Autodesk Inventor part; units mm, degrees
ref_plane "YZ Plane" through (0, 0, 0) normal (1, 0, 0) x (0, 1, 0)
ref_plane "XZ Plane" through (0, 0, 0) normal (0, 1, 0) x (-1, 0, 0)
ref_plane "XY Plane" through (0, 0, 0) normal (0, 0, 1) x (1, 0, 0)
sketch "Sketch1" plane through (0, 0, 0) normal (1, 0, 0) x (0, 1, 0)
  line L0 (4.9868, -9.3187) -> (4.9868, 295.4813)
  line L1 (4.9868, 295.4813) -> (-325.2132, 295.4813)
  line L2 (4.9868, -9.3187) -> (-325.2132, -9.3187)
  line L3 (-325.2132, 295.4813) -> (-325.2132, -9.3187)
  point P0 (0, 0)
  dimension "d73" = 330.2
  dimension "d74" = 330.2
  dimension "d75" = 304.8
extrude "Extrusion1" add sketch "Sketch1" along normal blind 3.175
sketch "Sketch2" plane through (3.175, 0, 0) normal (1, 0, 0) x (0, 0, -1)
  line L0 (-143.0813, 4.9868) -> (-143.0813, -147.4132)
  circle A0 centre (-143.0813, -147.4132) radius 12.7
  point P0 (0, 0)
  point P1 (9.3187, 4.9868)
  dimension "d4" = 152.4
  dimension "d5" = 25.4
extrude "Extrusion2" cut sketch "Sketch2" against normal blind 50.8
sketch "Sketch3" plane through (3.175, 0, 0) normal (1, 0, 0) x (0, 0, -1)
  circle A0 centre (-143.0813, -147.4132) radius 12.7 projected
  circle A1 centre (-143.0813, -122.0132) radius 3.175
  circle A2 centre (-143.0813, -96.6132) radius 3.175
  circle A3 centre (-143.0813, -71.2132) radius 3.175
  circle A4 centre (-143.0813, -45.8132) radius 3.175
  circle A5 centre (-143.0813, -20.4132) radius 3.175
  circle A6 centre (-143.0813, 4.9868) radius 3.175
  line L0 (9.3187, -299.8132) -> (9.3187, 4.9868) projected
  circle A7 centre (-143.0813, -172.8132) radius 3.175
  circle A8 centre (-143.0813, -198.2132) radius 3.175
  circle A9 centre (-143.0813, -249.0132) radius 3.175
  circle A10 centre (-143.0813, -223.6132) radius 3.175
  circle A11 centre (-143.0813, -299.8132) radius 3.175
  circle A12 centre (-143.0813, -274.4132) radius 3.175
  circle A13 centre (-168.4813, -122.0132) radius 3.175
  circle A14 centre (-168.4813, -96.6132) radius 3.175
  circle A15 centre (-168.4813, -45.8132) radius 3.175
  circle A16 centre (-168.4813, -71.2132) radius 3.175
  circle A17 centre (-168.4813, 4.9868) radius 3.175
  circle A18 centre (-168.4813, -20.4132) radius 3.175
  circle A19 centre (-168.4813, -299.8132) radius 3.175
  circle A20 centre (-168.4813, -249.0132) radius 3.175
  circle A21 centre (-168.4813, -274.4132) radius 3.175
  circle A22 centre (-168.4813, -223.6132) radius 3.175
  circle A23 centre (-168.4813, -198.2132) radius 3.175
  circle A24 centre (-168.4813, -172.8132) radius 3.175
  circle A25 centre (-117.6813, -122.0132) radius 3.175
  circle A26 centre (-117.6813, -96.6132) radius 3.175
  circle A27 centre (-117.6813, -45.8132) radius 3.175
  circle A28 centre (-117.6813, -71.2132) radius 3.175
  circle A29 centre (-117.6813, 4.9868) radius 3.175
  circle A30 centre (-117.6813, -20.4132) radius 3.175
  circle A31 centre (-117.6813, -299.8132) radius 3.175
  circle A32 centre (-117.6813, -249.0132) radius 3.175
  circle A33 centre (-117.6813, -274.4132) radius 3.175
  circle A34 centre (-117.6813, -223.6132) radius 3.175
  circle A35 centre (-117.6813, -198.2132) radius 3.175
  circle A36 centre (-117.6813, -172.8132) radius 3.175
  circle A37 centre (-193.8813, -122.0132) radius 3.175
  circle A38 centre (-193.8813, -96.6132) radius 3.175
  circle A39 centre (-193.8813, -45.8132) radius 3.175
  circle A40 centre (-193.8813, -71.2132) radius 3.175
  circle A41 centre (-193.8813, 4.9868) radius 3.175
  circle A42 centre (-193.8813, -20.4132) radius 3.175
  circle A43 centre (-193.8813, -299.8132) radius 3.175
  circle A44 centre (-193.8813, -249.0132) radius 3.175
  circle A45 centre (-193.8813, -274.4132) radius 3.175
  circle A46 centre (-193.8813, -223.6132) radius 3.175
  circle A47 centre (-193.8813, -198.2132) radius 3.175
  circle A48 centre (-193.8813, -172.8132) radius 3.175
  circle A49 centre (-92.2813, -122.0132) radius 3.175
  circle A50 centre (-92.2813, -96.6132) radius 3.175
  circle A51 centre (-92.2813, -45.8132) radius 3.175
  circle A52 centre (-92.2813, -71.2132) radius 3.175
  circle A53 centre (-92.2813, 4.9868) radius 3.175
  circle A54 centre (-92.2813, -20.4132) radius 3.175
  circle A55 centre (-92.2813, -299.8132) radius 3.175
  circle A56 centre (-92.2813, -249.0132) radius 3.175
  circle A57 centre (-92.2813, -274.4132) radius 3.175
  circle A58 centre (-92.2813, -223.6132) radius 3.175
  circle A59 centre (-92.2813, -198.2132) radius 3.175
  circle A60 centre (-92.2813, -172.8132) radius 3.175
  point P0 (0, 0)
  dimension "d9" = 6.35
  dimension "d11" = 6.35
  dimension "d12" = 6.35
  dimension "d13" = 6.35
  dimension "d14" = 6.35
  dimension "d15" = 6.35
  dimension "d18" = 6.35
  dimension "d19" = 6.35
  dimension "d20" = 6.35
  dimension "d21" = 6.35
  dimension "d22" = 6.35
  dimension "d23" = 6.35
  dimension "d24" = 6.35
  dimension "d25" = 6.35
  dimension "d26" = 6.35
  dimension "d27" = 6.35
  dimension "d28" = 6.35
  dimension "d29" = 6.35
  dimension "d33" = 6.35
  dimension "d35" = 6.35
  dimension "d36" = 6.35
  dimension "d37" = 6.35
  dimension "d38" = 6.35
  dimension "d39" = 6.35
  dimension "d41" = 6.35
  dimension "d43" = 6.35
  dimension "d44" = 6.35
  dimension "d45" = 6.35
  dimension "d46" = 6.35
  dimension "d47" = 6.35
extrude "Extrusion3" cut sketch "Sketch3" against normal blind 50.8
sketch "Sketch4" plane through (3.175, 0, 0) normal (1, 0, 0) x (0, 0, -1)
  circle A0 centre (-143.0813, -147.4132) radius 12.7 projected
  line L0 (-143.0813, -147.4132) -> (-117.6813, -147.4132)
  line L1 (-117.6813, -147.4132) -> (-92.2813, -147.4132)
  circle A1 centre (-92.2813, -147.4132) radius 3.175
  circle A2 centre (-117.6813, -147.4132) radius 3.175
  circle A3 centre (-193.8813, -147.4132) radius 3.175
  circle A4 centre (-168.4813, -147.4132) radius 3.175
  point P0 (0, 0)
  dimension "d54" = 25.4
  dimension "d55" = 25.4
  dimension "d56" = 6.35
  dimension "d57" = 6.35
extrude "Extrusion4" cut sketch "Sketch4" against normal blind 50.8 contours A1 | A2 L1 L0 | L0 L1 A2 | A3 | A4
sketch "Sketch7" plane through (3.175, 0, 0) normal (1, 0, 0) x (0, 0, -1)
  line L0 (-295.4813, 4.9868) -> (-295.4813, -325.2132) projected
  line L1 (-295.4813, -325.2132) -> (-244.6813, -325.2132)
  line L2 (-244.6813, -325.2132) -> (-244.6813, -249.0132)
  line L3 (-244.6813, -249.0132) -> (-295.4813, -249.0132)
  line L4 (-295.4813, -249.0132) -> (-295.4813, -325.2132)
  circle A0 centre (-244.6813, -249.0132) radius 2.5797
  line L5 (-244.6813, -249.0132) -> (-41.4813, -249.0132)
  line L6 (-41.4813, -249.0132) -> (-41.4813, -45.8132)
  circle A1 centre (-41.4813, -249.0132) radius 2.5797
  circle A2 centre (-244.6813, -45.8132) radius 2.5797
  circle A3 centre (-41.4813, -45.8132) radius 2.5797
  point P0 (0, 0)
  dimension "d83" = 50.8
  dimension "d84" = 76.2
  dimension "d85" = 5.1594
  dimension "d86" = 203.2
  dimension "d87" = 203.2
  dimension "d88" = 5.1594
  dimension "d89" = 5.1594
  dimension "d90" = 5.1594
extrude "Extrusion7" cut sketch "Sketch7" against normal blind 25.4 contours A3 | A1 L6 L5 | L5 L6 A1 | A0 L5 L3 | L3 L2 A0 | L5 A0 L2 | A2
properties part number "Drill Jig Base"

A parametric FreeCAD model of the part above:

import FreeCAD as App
import Part
import Sketcher
from FreeCAD import Vector
Q = App.Units.Quantity


def add_polygon(sketch, points):
    """Adds a closed chain of lines whose ends are joined by coincident constraints."""
    first, n = sketch.GeometryCount, len(points)
    for a, b in zip(points, points[1:] + points[:1]):
        sketch.addGeometry(Part.LineSegment(App.Vector(*a, 0), App.Vector(*b, 0)), False)
    for i in range(n):
        sketch.addConstraint(Sketcher.Constraint("Coincident", first + i, 2, first + (i + 1) % n, 1))

doc = App.newDocument("Part")
body = doc.addObject("PartDesign::Body", "Body")

# Sketch on YZ plane
sketch1 = body.newObject("Sketcher::SketchObject", "Sketch")
sketch1.AttachmentSupport = (doc.getObject("YZ_Plane"), [""])
sketch1.MapMode = "FlatFace"
add_polygon(sketch1, [(-325.2132, -9.3187), (4.9868, -9.3187), (4.9868, 295.4813), (-325.2132, 295.4813)])  # lines 0-3
sketch1.addConstraint(Sketcher.Constraint("Horizontal", 0))
sketch1.addConstraint(Sketcher.Constraint("Vertical", 1))
sketch1.addConstraint(Sketcher.Constraint("Horizontal", 2))
sketch1.addConstraint(Sketcher.Constraint("Vertical", 3))
sketch1.addConstraint(Sketcher.Constraint("DistanceX", 0, 1, 0, 2, Q("13 in")))
sketch1.addConstraint(Sketcher.Constraint("DistanceY", 1, 1, 1, 2, Q("12 in")))
sketch1.addConstraint(Sketcher.Constraint("DistanceX", -1, 1, 0, 2, 4.9868))
sketch1.addConstraint(Sketcher.Constraint("DistanceY", 0, 2, -1, 1, 9.3187))
pad1 = body.newObject("PartDesign::Pad", "Pad")
pad1.Profile = sketch1
pad1.Length = Q("0.125 in")

# Sketch on YZ plane
sketch2 = body.newObject("Sketcher::SketchObject", "Sketch001")
sketch2.AttachmentSupport = (doc.getObject("YZ_Plane"), [""])
sketch2.MapMode = "FlatFace"
sketch2.AttachmentOffset = App.Placement(Vector(0, 0, 0.125 * 25.4), App.Rotation())
sketch2.addGeometry(Part.Circle(Vector(-147.4132, 143.0813, 0), Vector(0, 0, 1), 12.7), False)
sketch2.addConstraint(Sketcher.Constraint("Diameter", 0, Q("1 in")))
sketch2.addConstraint(Sketcher.Constraint("DistanceX", 0, 3, -1, 1, 147.4132))
sketch2.addConstraint(Sketcher.Constraint("DistanceY", -1, 1, 0, 3, 143.0813))
pocket1 = body.newObject("PartDesign::Pocket", "Pocket")
pocket1.Profile = sketch2
pocket1.Length = Q("2 in")

# Sketch on YZ plane
sketch3 = body.newObject("Sketcher::SketchObject", "Sketch002")
sketch3.AttachmentSupport = (doc.getObject("YZ_Plane"), [""])
sketch3.MapMode = "FlatFace"
sketch3.AttachmentOffset = App.Placement(Vector(0, 0, 0.125 * 25.4), App.Rotation())
sketch3.addGeometry(Part.Circle(Vector(-147.4132, 143.0813, 0), Vector(0, 0, 1), 12.7), False)
sketch3.addGeometry(Part.Circle(Vector(-122.0132, 143.0813, 0), Vector(0, 0, 1), 3.175), False)
sketch3.addGeometry(Part.Circle(Vector(-96.6132, 143.0813, 0), Vector(0, 0, 1), 3.175), False)
sketch3.addGeometry(Part.Circle(Vector(-71.2132, 143.0813, 0), Vector(0, 0, 1), 3.175), False)
sketch3.addGeometry(Part.Circle(Vector(-45.8132, 143.0813, 0), Vector(0, 0, 1), 3.175), False)
sketch3.addGeometry(Part.Circle(Vector(-20.4132, 143.0813, 0), Vector(0, 0, 1), 3.175), False)
sketch3.addGeometry(Part.Circle(Vector(4.9868, 143.0813, 0), Vector(0, 0, 1), 3.175), False)
sketch3.addGeometry(Part.Circle(Vector(-172.8132, 143.0813, 0), Vector(0, 0, 1), 3.175), False)
sketch3.addGeometry(Part.Circle(Vector(-198.2132, 143.0813, 0), Vector(0, 0, 1), 3.175), False)
sketch3.addGeometry(Part.Circle(Vector(-249.0132, 143.0813, 0), Vector(0, 0, 1), 3.175), False)
sketch3.addGeometry(Part.Circle(Vector(-223.6132, 143.0813, 0), Vector(0, 0, 1), 3.175), False)
sketch3.addGeometry(Part.Circle(Vector(-299.8132, 143.0813, 0), Vector(0, 0, 1), 3.175), False)
sketch3.addGeometry(Part.Circle(Vector(-274.4132, 143.0813, 0), Vector(0, 0, 1), 3.175), False)
sketch3.addGeometry(Part.Circle(Vector(-122.0132, 168.4813, 0), Vector(0, 0, 1), 3.175), False)
sketch3.addGeometry(Part.Circle(Vector(-96.6132, 168.4813, 0), Vector(0, 0, 1), 3.175), False)
sketch3.addGeometry(Part.Circle(Vector(-45.8132, 168.4813, 0), Vector(0, 0, 1), 3.175), False)
sketch3.addGeometry(Part.Circle(Vector(-71.2132, 168.4813, 0), Vector(0, 0, 1), 3.175), False)
sketch3.addGeometry(Part.Circle(Vector(4.9868, 168.4813, 0), Vector(0, 0, 1), 3.175), False)
sketch3.addGeometry(Part.Circle(Vector(-20.4132, 168.4813, 0), Vector(0, 0, 1), 3.175), False)
sketch3.addGeometry(Part.Circle(Vector(-299.8132, 168.4813, 0), Vector(0, 0, 1), 3.175), False)
sketch3.addGeometry(Part.Circle(Vector(-249.0132, 168.4813, 0), Vector(0, 0, 1), 3.175), False)
sketch3.addGeometry(Part.Circle(Vector(-274.4132, 168.4813, 0), Vector(0, 0, 1), 3.175), False)
sketch3.addGeometry(Part.Circle(Vector(-223.6132, 168.4813, 0), Vector(0, 0, 1), 3.175), False)
sketch3.addGeometry(Part.Circle(Vector(-198.2132, 168.4813, 0), Vector(0, 0, 1), 3.175), False)
sketch3.addGeometry(Part.Circle(Vector(-172.8132, 168.4813, 0), Vector(0, 0, 1), 3.175), False)
sketch3.addGeometry(Part.Circle(Vector(-122.0132, 117.6813, 0), Vector(0, 0, 1), 3.175), False)
sketch3.addGeometry(Part.Circle(Vector(-96.6132, 117.6813, 0), Vector(0, 0, 1), 3.175), False)
sketch3.addGeometry(Part.Circle(Vector(-45.8132, 117.6813, 0), Vector(0, 0, 1), 3.175), False)
sketch3.addGeometry(Part.Circle(Vector(-71.2132, 117.6813, 0), Vector(0, 0, 1), 3.175), False)
sketch3.addGeometry(Part.Circle(Vector(4.9868, 117.6813, 0), Vector(0, 0, 1), 3.175), False)
sketch3.addGeometry(Part.Circle(Vector(-20.4132, 117.6813, 0), Vector(0, 0, 1), 3.175), False)
sketch3.addGeometry(Part.Circle(Vector(-299.8132, 117.6813, 0), Vector(0, 0, 1), 3.175), False)
sketch3.addGeometry(Part.Circle(Vector(-249.0132, 117.6813, 0), Vector(0, 0, 1), 3.175), False)
sketch3.addGeometry(Part.Circle(Vector(-274.4132, 117.6813, 0), Vector(0, 0, 1), 3.175), False)
sketch3.addGeometry(Part.Circle(Vector(-223.6132, 117.6813, 0), Vector(0, 0, 1), 3.175), False)
sketch3.addGeometry(Part.Circle(Vector(-198.2132, 117.6813, 0), Vector(0, 0, 1), 3.175), False)
sketch3.addGeometry(Part.Circle(Vector(-172.8132, 117.6813, 0), Vector(0, 0, 1), 3.175), False)
sketch3.addGeometry(Part.Circle(Vector(-122.0132, 193.8813, 0), Vector(0, 0, 1), 3.175), False)
sketch3.addGeometry(Part.Circle(Vector(-96.6132, 193.8813, 0), Vector(0, 0, 1), 3.175), False)
sketch3.addGeometry(Part.Circle(Vector(-45.8132, 193.8813, 0), Vector(0, 0, 1), 3.175), False)
sketch3.addGeometry(Part.Circle(Vector(-71.2132, 193.8813, 0), Vector(0, 0, 1), 3.175), False)
sketch3.addGeometry(Part.Circle(Vector(4.9868, 193.8813, 0), Vector(0, 0, 1), 3.175), False)
sketch3.addGeometry(Part.Circle(Vector(-20.4132, 193.8813, 0), Vector(0, 0, 1), 3.175), False)
sketch3.addGeometry(Part.Circle(Vector(-299.8132, 193.8813, 0), Vector(0, 0, 1), 3.175), False)
sketch3.addGeometry(Part.Circle(Vector(-249.0132, 193.8813, 0), Vector(0, 0, 1), 3.175), False)
sketch3.addGeometry(Part.Circle(Vector(-274.4132, 193.8813, 0), Vector(0, 0, 1), 3.175), False)
sketch3.addGeometry(Part.Circle(Vector(-223.6132, 193.8813, 0), Vector(0, 0, 1), 3.175), False)
sketch3.addGeometry(Part.Circle(Vector(-198.2132, 193.8813, 0), Vector(0, 0, 1), 3.175), False)
sketch3.addGeometry(Part.Circle(Vector(-172.8132, 193.8813, 0), Vector(0, 0, 1), 3.175), False)
sketch3.addGeometry(Part.Circle(Vector(-122.0132, 92.2813, 0), Vector(0, 0, 1), 3.175), False)
sketch3.addGeometry(Part.Circle(Vector(-96.6132, 92.2813, 0), Vector(0, 0, 1), 3.175), False)
sketch3.addGeometry(Part.Circle(Vector(-45.8132, 92.2813, 0), Vector(0, 0, 1), 3.175), False)
sketch3.addGeometry(Part.Circle(Vector(-71.2132, 92.2813, 0), Vector(0, 0, 1), 3.175), False)
sketch3.addGeometry(Part.Circle(Vector(4.9868, 92.2813, 0), Vector(0, 0, 1), 3.175), False)
sketch3.addGeometry(Part.Circle(Vector(-20.4132, 92.2813, 0), Vector(0, 0, 1), 3.175), False)
sketch3.addGeometry(Part.Circle(Vector(-299.8132, 92.2813, 0), Vector(0, 0, 1), 3.175), False)
sketch3.addGeometry(Part.Circle(Vector(-249.0132, 92.2813, 0), Vector(0, 0, 1), 3.175), False)
sketch3.addGeometry(Part.Circle(Vector(-274.4132, 92.2813, 0), Vector(0, 0, 1), 3.175), False)
sketch3.addGeometry(Part.Circle(Vector(-223.6132, 92.2813, 0), Vector(0, 0, 1), 3.175), False)
sketch3.addGeometry(Part.Circle(Vector(-198.2132, 92.2813, 0), Vector(0, 0, 1), 3.175), False)
sketch3.addGeometry(Part.Circle(Vector(-172.8132, 92.2813, 0), Vector(0, 0, 1), 3.175), False)
sketch3.addConstraint(Sketcher.Constraint("Equal", 1, 2))
sketch3.addConstraint(Sketcher.Constraint("Equal", 2, 3))
sketch3.addConstraint(Sketcher.Constraint("Equal", 3, 4))
sketch3.addConstraint(Sketcher.Constraint("Equal", 4, 5))
sketch3.addConstraint(Sketcher.Constraint("Equal", 5, 6))
sketch3.addConstraint(Sketcher.Constraint("Equal", 6, 7))
sketch3.addConstraint(Sketcher.Constraint("Equal", 7, 8))
sketch3.addConstraint(Sketcher.Constraint("Equal", 8, 9))
sketch3.addConstraint(Sketcher.Constraint("Equal", 9, 10))
sketch3.addConstraint(Sketcher.Constraint("Equal", 10, 11))
sketch3.addConstraint(Sketcher.Constraint("Equal", 11, 12))
sketch3.addConstraint(Sketcher.Constraint("Equal", 12, 13))
sketch3.addConstraint(Sketcher.Constraint("Equal", 13, 14))
sketch3.addConstraint(Sketcher.Constraint("Equal", 14, 15))
sketch3.addConstraint(Sketcher.Constraint("Equal", 15, 16))
sketch3.addConstraint(Sketcher.Constraint("Equal", 16, 17))
sketch3.addConstraint(Sketcher.Constraint("Equal", 17, 18))
sketch3.addConstraint(Sketcher.Constraint("Equal", 18, 19))
sketch3.addConstraint(Sketcher.Constraint("Equal", 19, 20))
sketch3.addConstraint(Sketcher.Constraint("Equal", 20, 21))
sketch3.addConstraint(Sketcher.Constraint("Equal", 21, 22))
sketch3.addConstraint(Sketcher.Constraint("Equal", 22, 23))
sketch3.addConstraint(Sketcher.Constraint("Equal", 23, 24))
sketch3.addConstraint(Sketcher.Constraint("Equal", 24, 25))
sketch3.addConstraint(Sketcher.Constraint("Equal", 25, 26))
sketch3.addConstraint(Sketcher.Constraint("Equal", 26, 27))
sketch3.addConstraint(Sketcher.Constraint("Equal", 27, 28))
sketch3.addConstraint(Sketcher.Constraint("Equal", 28, 29))
sketch3.addConstraint(Sketcher.Constraint("Equal", 29, 30))
sketch3.addConstraint(Sketcher.Constraint("Equal", 30, 31))
sketch3.addConstraint(Sketcher.Constraint("Equal", 31, 32))
sketch3.addConstraint(Sketcher.Constraint("Equal", 32, 33))
sketch3.addConstraint(Sketcher.Constraint("Equal", 33, 34))
sketch3.addConstraint(Sketcher.Constraint("Equal", 34, 35))
sketch3.addConstraint(Sketcher.Constraint("Equal", 35, 36))
sketch3.addConstraint(Sketcher.Constraint("Equal", 36, 37))
sketch3.addConstraint(Sketcher.Constraint("Equal", 37, 38))
sketch3.addConstraint(Sketcher.Constraint("Equal", 38, 39))
sketch3.addConstraint(Sketcher.Constraint("Equal", 39, 40))
sketch3.addConstraint(Sketcher.Constraint("Equal", 40, 41))
sketch3.addConstraint(Sketcher.Constraint("Equal", 41, 42))
sketch3.addConstraint(Sketcher.Constraint("Equal", 42, 43))
sketch3.addConstraint(Sketcher.Constraint("Equal", 43, 44))
sketch3.addConstraint(Sketcher.Constraint("Equal", 44, 45))
sketch3.addConstraint(Sketcher.Constraint("Equal", 45, 46))
sketch3.addConstraint(Sketcher.Constraint("Equal", 46, 47))
sketch3.addConstraint(Sketcher.Constraint("Equal", 47, 48))
sketch3.addConstraint(Sketcher.Constraint("Equal", 48, 49))
sketch3.addConstraint(Sketcher.Constraint("Equal", 49, 50))
sketch3.addConstraint(Sketcher.Constraint("Equal", 50, 51))
sketch3.addConstraint(Sketcher.Constraint("Equal", 51, 52))
sketch3.addConstraint(Sketcher.Constraint("Equal", 52, 53))
sketch3.addConstraint(Sketcher.Constraint("Equal", 53, 54))
sketch3.addConstraint(Sketcher.Constraint("Equal", 54, 55))
sketch3.addConstraint(Sketcher.Constraint("Equal", 55, 56))
sketch3.addConstraint(Sketcher.Constraint("Equal", 56, 57))
sketch3.addConstraint(Sketcher.Constraint("Equal", 57, 58))
sketch3.addConstraint(Sketcher.Constraint("Equal", 58, 59))
sketch3.addConstraint(Sketcher.Constraint("Equal", 59, 60))
sketch3.addConstraint(Sketcher.Constraint("Horizontal", 0, 3, 1, 3))
sketch3.addConstraint(Sketcher.Constraint("Horizontal", 1, 3, 2, 3))
sketch3.addConstraint(Sketcher.Constraint("Horizontal", 2, 3, 3, 3))
sketch3.addConstraint(Sketcher.Constraint("Horizontal", 3, 3, 4, 3))
sketch3.addConstraint(Sketcher.Constraint("Horizontal", 4, 3, 5, 3))
sketch3.addConstraint(Sketcher.Constraint("Horizontal", 5, 3, 6, 3))
sketch3.addConstraint(Sketcher.Constraint("Horizontal", 6, 3, 7, 3))
sketch3.addConstraint(Sketcher.Constraint("Horizontal", 7, 3, 8, 3))
sketch3.addConstraint(Sketcher.Constraint("Horizontal", 8, 3, 9, 3))
sketch3.addConstraint(Sketcher.Constraint("Horizontal", 9, 3, 10, 3))
sketch3.addConstraint(Sketcher.Constraint("Horizontal", 10, 3, 11, 3))
sketch3.addConstraint(Sketcher.Constraint("Horizontal", 11, 3, 12, 3))
sketch3.addConstraint(Sketcher.Constraint("Horizontal", 13, 3, 14, 3))
sketch3.addConstraint(Sketcher.Constraint("Horizontal", 14, 3, 15, 3))
sketch3.addConstraint(Sketcher.Constraint("Horizontal", 15, 3, 16, 3))
sketch3.addConstraint(Sketcher.Constraint("Horizontal", 16, 3, 17, 3))
sketch3.addConstraint(Sketcher.Constraint("Horizontal", 17, 3, 18, 3))
sketch3.addConstraint(Sketcher.Constraint("Horizontal", 18, 3, 19, 3))
sketch3.addConstraint(Sketcher.Constraint("Horizontal", 19, 3, 20, 3))
sketch3.addConstraint(Sketcher.Constraint("Horizontal", 20, 3, 21, 3))
sketch3.addConstraint(Sketcher.Constraint("Horizontal", 21, 3, 22, 3))
sketch3.addConstraint(Sketcher.Constraint("Horizontal", 22, 3, 23, 3))
sketch3.addConstraint(Sketcher.Constraint("Horizontal", 23, 3, 24, 3))
sketch3.addConstraint(Sketcher.Constraint("Horizontal", 25, 3, 26, 3))
sketch3.addConstraint(Sketcher.Constraint("Horizontal", 26, 3, 27, 3))
sketch3.addConstraint(Sketcher.Constraint("Horizontal", 27, 3, 28, 3))
sketch3.addConstraint(Sketcher.Constraint("Horizontal", 28, 3, 29, 3))
sketch3.addConstraint(Sketcher.Constraint("Horizontal", 29, 3, 30, 3))
sketch3.addConstraint(Sketcher.Constraint("Horizontal", 30, 3, 31, 3))
sketch3.addConstraint(Sketcher.Constraint("Horizontal", 31, 3, 32, 3))
sketch3.addConstraint(Sketcher.Constraint("Horizontal", 32, 3, 33, 3))
sketch3.addConstraint(Sketcher.Constraint("Horizontal", 33, 3, 34, 3))
sketch3.addConstraint(Sketcher.Constraint("Horizontal", 34, 3, 35, 3))
sketch3.addConstraint(Sketcher.Constraint("Horizontal", 35, 3, 36, 3))
sketch3.addConstraint(Sketcher.Constraint("Horizontal", 37, 3, 38, 3))
sketch3.addConstraint(Sketcher.Constraint("Horizontal", 38, 3, 39, 3))
sketch3.addConstraint(Sketcher.Constraint("Horizontal", 39, 3, 40, 3))
sketch3.addConstraint(Sketcher.Constraint("Horizontal", 40, 3, 41, 3))
sketch3.addConstraint(Sketcher.Constraint("Horizontal", 41, 3, 42, 3))
sketch3.addConstraint(Sketcher.Constraint("Horizontal", 42, 3, 43, 3))
sketch3.addConstraint(Sketcher.Constraint("Horizontal", 43, 3, 44, 3))
sketch3.addConstraint(Sketcher.Constraint("Horizontal", 44, 3, 45, 3))
sketch3.addConstraint(Sketcher.Constraint("Horizontal", 45, 3, 46, 3))
sketch3.addConstraint(Sketcher.Constraint("Horizontal", 46, 3, 47, 3))
sketch3.addConstraint(Sketcher.Constraint("Horizontal", 47, 3, 48, 3))
sketch3.addConstraint(Sketcher.Constraint("Horizontal", 49, 3, 50, 3))
sketch3.addConstraint(Sketcher.Constraint("Horizontal", 50, 3, 51, 3))
sketch3.addConstraint(Sketcher.Constraint("Horizontal", 51, 3, 52, 3))
sketch3.addConstraint(Sketcher.Constraint("Horizontal", 52, 3, 53, 3))
sketch3.addConstraint(Sketcher.Constraint("Horizontal", 53, 3, 54, 3))
sketch3.addConstraint(Sketcher.Constraint("Horizontal", 54, 3, 55, 3))
sketch3.addConstraint(Sketcher.Constraint("Horizontal", 55, 3, 56, 3))
sketch3.addConstraint(Sketcher.Constraint("Horizontal", 56, 3, 57, 3))
sketch3.addConstraint(Sketcher.Constraint("Horizontal", 57, 3, 58, 3))
sketch3.addConstraint(Sketcher.Constraint("Horizontal", 58, 3, 59, 3))
sketch3.addConstraint(Sketcher.Constraint("Horizontal", 59, 3, 60, 3))
sketch3.addConstraint(Sketcher.Constraint("Vertical", 1, 3, 13, 3))
sketch3.addConstraint(Sketcher.Constraint("Vertical", 2, 3, 14, 3))
sketch3.addConstraint(Sketcher.Constraint("Vertical", 4, 3, 15, 3))
sketch3.addConstraint(Sketcher.Constraint("Vertical", 3, 3, 16, 3))
sketch3.addConstraint(Sketcher.Constraint("Vertical", 6, 3, 17, 3))
sketch3.addConstraint(Sketcher.Constraint("Vertical", 5, 3, 18, 3))
sketch3.addConstraint(Sketcher.Constraint("Vertical", 11, 3, 19, 3))
sketch3.addConstraint(Sketcher.Constraint("Vertical", 9, 3, 20, 3))
sketch3.addConstraint(Sketcher.Constraint("Vertical", 12, 3, 21, 3))
sketch3.addConstraint(Sketcher.Constraint("Vertical", 10, 3, 22, 3))
sketch3.addConstraint(Sketcher.Constraint("Vertical", 8, 3, 23, 3))
sketch3.addConstraint(Sketcher.Constraint("Vertical", 7, 3, 24, 3))
sketch3.addConstraint(Sketcher.Constraint("Vertical", 13, 3, 25, 3))
sketch3.addConstraint(Sketcher.Constraint("Vertical", 14, 3, 26, 3))
sketch3.addConstraint(Sketcher.Constraint("Vertical", 15, 3, 27, 3))
sketch3.addConstraint(Sketcher.Constraint("Vertical", 16, 3, 28, 3))
sketch3.addConstraint(Sketcher.Constraint("Vertical", 17, 3, 29, 3))
sketch3.addConstraint(Sketcher.Constraint("Vertical", 18, 3, 30, 3))
sketch3.addConstraint(Sketcher.Constraint("Vertical", 19, 3, 31, 3))
sketch3.addConstraint(Sketcher.Constraint("Vertical", 20, 3, 32, 3))
sketch3.addConstraint(Sketcher.Constraint("Vertical", 21, 3, 33, 3))
sketch3.addConstraint(Sketcher.Constraint("Vertical", 22, 3, 34, 3))
sketch3.addConstraint(Sketcher.Constraint("Vertical", 23, 3, 35, 3))
sketch3.addConstraint(Sketcher.Constraint("Vertical", 24, 3, 36, 3))
sketch3.addConstraint(Sketcher.Constraint("Vertical", 25, 3, 37, 3))
sketch3.addConstraint(Sketcher.Constraint("Vertical", 26, 3, 38, 3))
sketch3.addConstraint(Sketcher.Constraint("Vertical", 27, 3, 39, 3))
sketch3.addConstraint(Sketcher.Constraint("Vertical", 28, 3, 40, 3))
sketch3.addConstraint(Sketcher.Constraint("Vertical", 29, 3, 41, 3))
sketch3.addConstraint(Sketcher.Constraint("Vertical", 30, 3, 42, 3))
sketch3.addConstraint(Sketcher.Constraint("Vertical", 31, 3, 43, 3))
sketch3.addConstraint(Sketcher.Constraint("Vertical", 32, 3, 44, 3))
sketch3.addConstraint(Sketcher.Constraint("Vertical", 33, 3, 45, 3))
sketch3.addConstraint(Sketcher.Constraint("Vertical", 34, 3, 46, 3))
sketch3.addConstraint(Sketcher.Constraint("Vertical", 35, 3, 47, 3))
sketch3.addConstraint(Sketcher.Constraint("Vertical", 36, 3, 48, 3))
sketch3.addConstraint(Sketcher.Constraint("Vertical", 37, 3, 49, 3))
sketch3.addConstraint(Sketcher.Constraint("Vertical", 38, 3, 50, 3))
sketch3.addConstraint(Sketcher.Constraint("Vertical", 39, 3, 51, 3))
sketch3.addConstraint(Sketcher.Constraint("Vertical", 40, 3, 52, 3))
sketch3.addConstraint(Sketcher.Constraint("Vertical", 41, 3, 53, 3))
sketch3.addConstraint(Sketcher.Constraint("Vertical", 42, 3, 54, 3))
sketch3.addConstraint(Sketcher.Constraint("Vertical", 43, 3, 55, 3))
sketch3.addConstraint(Sketcher.Constraint("Vertical", 44, 3, 56, 3))
sketch3.addConstraint(Sketcher.Constraint("Vertical", 45, 3, 57, 3))
sketch3.addConstraint(Sketcher.Constraint("Vertical", 46, 3, 58, 3))
sketch3.addConstraint(Sketcher.Constraint("Vertical", 47, 3, 59, 3))
sketch3.addConstraint(Sketcher.Constraint("Vertical", 48, 3, 60, 3))
sketch3.addConstraint(Sketcher.Constraint("Diameter", 1, Q("0.25 in")))
sketch3.addConstraint(Sketcher.Constraint("Diameter", 0, Q("1 in")))
sketch3.addConstraint(Sketcher.Constraint("DistanceX", 0, 3, -1, 1, 147.4132))
sketch3.addConstraint(Sketcher.Constraint("DistanceY", -1, 1, 0, 3, 143.0813))
sketch3.addConstraint(Sketcher.Constraint("DistanceX", 1, 3, -1, 1, 122.0132))
sketch3.addConstraint(Sketcher.Constraint("DistanceX", 2, 3, -1, 1, 96.6132))
sketch3.addConstraint(Sketcher.Constraint("DistanceX", 3, 3, -1, 1, 71.2132))
sketch3.addConstraint(Sketcher.Constraint("DistanceX", 4, 3, -1, 1, 45.8132))
sketch3.addConstraint(Sketcher.Constraint("DistanceX", 5, 3, -1, 1, 20.4132))
sketch3.addConstraint(Sketcher.Constraint("DistanceX", -1, 1, 6, 3, 4.9868))
sketch3.addConstraint(Sketcher.Constraint("DistanceX", 7, 3, -1, 1, 172.8132))
sketch3.addConstraint(Sketcher.Constraint("DistanceX", 8, 3, -1, 1, 198.2132))
sketch3.addConstraint(Sketcher.Constraint("DistanceX", 9, 3, -1, 1, 249.0132))
sketch3.addConstraint(Sketcher.Constraint("DistanceX", 10, 3, -1, 1, 223.6132))
sketch3.addConstraint(Sketcher.Constraint("DistanceX", 11, 3, -1, 1, 299.8132))
sketch3.addConstraint(Sketcher.Constraint("DistanceX", 12, 3, -1, 1, 274.4132))
sketch3.addConstraint(Sketcher.Constraint("DistanceY", -1, 1, 13, 3, 168.4813))
sketch3.addConstraint(Sketcher.Constraint("DistanceY", -1, 1, 25, 3, 117.6813))
sketch3.addConstraint(Sketcher.Constraint("DistanceY", -1, 1, 37, 3, 193.8813))
sketch3.addConstraint(Sketcher.Constraint("DistanceY", -1, 1, 49, 3, 92.2813))
pocket2 = body.newObject("PartDesign::Pocket", "Pocket001")
pocket2.Profile = sketch3
pocket2.Length = Q("2 in")

# Sketch on YZ plane
sketch4 = body.newObject("Sketcher::SketchObject", "Sketch003")
sketch4.AttachmentSupport = (doc.getObject("YZ_Plane"), [""])
sketch4.MapMode = "FlatFace"
sketch4.AttachmentOffset = App.Placement(Vector(0, 0, 0.125 * 25.4), App.Rotation())
sketch4.addGeometry(Part.Circle(Vector(-147.4132, 92.2813, 0), Vector(0, 0, 1), 3.175), False)
sketch4.addGeometry(Part.Circle(Vector(-147.4132, 117.6813, 0), Vector(0, 0, 1), 3.175), False)
sketch4.addGeometry(Part.Circle(Vector(-147.4132, 193.8813, 0), Vector(0, 0, 1), 3.175), False)
sketch4.addGeometry(Part.Circle(Vector(-147.4132, 168.4813, 0), Vector(0, 0, 1), 3.175), False)
sketch4.addConstraint(Sketcher.Constraint("Equal", 0, 1))
sketch4.addConstraint(Sketcher.Constraint("Equal", 1, 2))
sketch4.addConstraint(Sketcher.Constraint("Equal", 2, 3))
sketch4.addConstraint(Sketcher.Constraint("Vertical", 0, 3, 1, 3))
sketch4.addConstraint(Sketcher.Constraint("Vertical", 1, 3, 2, 3))
sketch4.addConstraint(Sketcher.Constraint("Vertical", 2, 3, 3, 3))
sketch4.addConstraint(Sketcher.Constraint("Diameter", 0, Q("0.25 in")))
sketch4.addConstraint(Sketcher.Constraint("DistanceY", 0, 3, 1, 3, Q("1 in")))
sketch4.addConstraint(Sketcher.Constraint("DistanceY", 3, 3, 2, 3, Q("1 in")))
sketch4.addConstraint(Sketcher.Constraint("DistanceY", 1, 3, 2, 3, Q("3 in")))
sketch4.addConstraint(Sketcher.Constraint("DistanceX", 0, 3, -1, 1, 147.4132))
sketch4.addConstraint(Sketcher.Constraint("DistanceY", -1, 1, 0, 3, 92.2813))
pocket3 = body.newObject("PartDesign::Pocket", "Pocket002")
pocket3.Profile = sketch4
pocket3.Length = Q("2 in")

# Sketch on YZ plane
sketch5 = body.newObject("Sketcher::SketchObject", "Sketch004")
sketch5.AttachmentSupport = (doc.getObject("YZ_Plane"), [""])
sketch5.MapMode = "FlatFace"
sketch5.AttachmentOffset = App.Placement(Vector(0, 0, 0.125 * 25.4), App.Rotation())
sketch5.addGeometry(Part.Circle(Vector(-45.8132, 41.4813, 0), Vector(0, 0, 1), 2.5797), False)
sketch5.addGeometry(Part.Circle(Vector(-249.0132, 41.4813, 0), Vector(0, 0, 1), 2.5797), False)
sketch5.addGeometry(Part.Circle(Vector(-249.0132, 244.6813, 0), Vector(0, 0, 1), 2.5797), False)
sketch5.addGeometry(Part.Circle(Vector(-45.8132, 244.6813, 0), Vector(0, 0, 1), 2.5797), False)
sketch5.addConstraint(Sketcher.Constraint("Equal", 0, 1))
sketch5.addConstraint(Sketcher.Constraint("Equal", 1, 2))
sketch5.addConstraint(Sketcher.Constraint("Equal", 2, 3))
sketch5.addConstraint(Sketcher.Constraint("Horizontal", 0, 3, 1, 3))
sketch5.addConstraint(Sketcher.Constraint("Horizontal", 2, 3, 3, 3))
sketch5.addConstraint(Sketcher.Constraint("Vertical", 1, 3, 2, 3))
sketch5.addConstraint(Sketcher.Constraint("Vertical", 0, 3, 3, 3))
sketch5.addConstraint(Sketcher.Constraint("Diameter", 0, Q("0.203126 in")))
sketch5.addConstraint(Sketcher.Constraint("DistanceX", 1, 3, 0, 3, Q("8 in")))
sketch5.addConstraint(Sketcher.Constraint("DistanceY", 1, 3, 2, 3, Q("8 in")))
sketch5.addConstraint(Sketcher.Constraint("DistanceX", 0, 3, -1, 1, 45.8132))
sketch5.addConstraint(Sketcher.Constraint("DistanceY", -1, 1, 0, 3, 41.4813))
pocket4 = body.newObject("PartDesign::Pocket", "Pocket003")
pocket4.Profile = sketch5
pocket4.Length = Q("1 in")

doc.recompute()
